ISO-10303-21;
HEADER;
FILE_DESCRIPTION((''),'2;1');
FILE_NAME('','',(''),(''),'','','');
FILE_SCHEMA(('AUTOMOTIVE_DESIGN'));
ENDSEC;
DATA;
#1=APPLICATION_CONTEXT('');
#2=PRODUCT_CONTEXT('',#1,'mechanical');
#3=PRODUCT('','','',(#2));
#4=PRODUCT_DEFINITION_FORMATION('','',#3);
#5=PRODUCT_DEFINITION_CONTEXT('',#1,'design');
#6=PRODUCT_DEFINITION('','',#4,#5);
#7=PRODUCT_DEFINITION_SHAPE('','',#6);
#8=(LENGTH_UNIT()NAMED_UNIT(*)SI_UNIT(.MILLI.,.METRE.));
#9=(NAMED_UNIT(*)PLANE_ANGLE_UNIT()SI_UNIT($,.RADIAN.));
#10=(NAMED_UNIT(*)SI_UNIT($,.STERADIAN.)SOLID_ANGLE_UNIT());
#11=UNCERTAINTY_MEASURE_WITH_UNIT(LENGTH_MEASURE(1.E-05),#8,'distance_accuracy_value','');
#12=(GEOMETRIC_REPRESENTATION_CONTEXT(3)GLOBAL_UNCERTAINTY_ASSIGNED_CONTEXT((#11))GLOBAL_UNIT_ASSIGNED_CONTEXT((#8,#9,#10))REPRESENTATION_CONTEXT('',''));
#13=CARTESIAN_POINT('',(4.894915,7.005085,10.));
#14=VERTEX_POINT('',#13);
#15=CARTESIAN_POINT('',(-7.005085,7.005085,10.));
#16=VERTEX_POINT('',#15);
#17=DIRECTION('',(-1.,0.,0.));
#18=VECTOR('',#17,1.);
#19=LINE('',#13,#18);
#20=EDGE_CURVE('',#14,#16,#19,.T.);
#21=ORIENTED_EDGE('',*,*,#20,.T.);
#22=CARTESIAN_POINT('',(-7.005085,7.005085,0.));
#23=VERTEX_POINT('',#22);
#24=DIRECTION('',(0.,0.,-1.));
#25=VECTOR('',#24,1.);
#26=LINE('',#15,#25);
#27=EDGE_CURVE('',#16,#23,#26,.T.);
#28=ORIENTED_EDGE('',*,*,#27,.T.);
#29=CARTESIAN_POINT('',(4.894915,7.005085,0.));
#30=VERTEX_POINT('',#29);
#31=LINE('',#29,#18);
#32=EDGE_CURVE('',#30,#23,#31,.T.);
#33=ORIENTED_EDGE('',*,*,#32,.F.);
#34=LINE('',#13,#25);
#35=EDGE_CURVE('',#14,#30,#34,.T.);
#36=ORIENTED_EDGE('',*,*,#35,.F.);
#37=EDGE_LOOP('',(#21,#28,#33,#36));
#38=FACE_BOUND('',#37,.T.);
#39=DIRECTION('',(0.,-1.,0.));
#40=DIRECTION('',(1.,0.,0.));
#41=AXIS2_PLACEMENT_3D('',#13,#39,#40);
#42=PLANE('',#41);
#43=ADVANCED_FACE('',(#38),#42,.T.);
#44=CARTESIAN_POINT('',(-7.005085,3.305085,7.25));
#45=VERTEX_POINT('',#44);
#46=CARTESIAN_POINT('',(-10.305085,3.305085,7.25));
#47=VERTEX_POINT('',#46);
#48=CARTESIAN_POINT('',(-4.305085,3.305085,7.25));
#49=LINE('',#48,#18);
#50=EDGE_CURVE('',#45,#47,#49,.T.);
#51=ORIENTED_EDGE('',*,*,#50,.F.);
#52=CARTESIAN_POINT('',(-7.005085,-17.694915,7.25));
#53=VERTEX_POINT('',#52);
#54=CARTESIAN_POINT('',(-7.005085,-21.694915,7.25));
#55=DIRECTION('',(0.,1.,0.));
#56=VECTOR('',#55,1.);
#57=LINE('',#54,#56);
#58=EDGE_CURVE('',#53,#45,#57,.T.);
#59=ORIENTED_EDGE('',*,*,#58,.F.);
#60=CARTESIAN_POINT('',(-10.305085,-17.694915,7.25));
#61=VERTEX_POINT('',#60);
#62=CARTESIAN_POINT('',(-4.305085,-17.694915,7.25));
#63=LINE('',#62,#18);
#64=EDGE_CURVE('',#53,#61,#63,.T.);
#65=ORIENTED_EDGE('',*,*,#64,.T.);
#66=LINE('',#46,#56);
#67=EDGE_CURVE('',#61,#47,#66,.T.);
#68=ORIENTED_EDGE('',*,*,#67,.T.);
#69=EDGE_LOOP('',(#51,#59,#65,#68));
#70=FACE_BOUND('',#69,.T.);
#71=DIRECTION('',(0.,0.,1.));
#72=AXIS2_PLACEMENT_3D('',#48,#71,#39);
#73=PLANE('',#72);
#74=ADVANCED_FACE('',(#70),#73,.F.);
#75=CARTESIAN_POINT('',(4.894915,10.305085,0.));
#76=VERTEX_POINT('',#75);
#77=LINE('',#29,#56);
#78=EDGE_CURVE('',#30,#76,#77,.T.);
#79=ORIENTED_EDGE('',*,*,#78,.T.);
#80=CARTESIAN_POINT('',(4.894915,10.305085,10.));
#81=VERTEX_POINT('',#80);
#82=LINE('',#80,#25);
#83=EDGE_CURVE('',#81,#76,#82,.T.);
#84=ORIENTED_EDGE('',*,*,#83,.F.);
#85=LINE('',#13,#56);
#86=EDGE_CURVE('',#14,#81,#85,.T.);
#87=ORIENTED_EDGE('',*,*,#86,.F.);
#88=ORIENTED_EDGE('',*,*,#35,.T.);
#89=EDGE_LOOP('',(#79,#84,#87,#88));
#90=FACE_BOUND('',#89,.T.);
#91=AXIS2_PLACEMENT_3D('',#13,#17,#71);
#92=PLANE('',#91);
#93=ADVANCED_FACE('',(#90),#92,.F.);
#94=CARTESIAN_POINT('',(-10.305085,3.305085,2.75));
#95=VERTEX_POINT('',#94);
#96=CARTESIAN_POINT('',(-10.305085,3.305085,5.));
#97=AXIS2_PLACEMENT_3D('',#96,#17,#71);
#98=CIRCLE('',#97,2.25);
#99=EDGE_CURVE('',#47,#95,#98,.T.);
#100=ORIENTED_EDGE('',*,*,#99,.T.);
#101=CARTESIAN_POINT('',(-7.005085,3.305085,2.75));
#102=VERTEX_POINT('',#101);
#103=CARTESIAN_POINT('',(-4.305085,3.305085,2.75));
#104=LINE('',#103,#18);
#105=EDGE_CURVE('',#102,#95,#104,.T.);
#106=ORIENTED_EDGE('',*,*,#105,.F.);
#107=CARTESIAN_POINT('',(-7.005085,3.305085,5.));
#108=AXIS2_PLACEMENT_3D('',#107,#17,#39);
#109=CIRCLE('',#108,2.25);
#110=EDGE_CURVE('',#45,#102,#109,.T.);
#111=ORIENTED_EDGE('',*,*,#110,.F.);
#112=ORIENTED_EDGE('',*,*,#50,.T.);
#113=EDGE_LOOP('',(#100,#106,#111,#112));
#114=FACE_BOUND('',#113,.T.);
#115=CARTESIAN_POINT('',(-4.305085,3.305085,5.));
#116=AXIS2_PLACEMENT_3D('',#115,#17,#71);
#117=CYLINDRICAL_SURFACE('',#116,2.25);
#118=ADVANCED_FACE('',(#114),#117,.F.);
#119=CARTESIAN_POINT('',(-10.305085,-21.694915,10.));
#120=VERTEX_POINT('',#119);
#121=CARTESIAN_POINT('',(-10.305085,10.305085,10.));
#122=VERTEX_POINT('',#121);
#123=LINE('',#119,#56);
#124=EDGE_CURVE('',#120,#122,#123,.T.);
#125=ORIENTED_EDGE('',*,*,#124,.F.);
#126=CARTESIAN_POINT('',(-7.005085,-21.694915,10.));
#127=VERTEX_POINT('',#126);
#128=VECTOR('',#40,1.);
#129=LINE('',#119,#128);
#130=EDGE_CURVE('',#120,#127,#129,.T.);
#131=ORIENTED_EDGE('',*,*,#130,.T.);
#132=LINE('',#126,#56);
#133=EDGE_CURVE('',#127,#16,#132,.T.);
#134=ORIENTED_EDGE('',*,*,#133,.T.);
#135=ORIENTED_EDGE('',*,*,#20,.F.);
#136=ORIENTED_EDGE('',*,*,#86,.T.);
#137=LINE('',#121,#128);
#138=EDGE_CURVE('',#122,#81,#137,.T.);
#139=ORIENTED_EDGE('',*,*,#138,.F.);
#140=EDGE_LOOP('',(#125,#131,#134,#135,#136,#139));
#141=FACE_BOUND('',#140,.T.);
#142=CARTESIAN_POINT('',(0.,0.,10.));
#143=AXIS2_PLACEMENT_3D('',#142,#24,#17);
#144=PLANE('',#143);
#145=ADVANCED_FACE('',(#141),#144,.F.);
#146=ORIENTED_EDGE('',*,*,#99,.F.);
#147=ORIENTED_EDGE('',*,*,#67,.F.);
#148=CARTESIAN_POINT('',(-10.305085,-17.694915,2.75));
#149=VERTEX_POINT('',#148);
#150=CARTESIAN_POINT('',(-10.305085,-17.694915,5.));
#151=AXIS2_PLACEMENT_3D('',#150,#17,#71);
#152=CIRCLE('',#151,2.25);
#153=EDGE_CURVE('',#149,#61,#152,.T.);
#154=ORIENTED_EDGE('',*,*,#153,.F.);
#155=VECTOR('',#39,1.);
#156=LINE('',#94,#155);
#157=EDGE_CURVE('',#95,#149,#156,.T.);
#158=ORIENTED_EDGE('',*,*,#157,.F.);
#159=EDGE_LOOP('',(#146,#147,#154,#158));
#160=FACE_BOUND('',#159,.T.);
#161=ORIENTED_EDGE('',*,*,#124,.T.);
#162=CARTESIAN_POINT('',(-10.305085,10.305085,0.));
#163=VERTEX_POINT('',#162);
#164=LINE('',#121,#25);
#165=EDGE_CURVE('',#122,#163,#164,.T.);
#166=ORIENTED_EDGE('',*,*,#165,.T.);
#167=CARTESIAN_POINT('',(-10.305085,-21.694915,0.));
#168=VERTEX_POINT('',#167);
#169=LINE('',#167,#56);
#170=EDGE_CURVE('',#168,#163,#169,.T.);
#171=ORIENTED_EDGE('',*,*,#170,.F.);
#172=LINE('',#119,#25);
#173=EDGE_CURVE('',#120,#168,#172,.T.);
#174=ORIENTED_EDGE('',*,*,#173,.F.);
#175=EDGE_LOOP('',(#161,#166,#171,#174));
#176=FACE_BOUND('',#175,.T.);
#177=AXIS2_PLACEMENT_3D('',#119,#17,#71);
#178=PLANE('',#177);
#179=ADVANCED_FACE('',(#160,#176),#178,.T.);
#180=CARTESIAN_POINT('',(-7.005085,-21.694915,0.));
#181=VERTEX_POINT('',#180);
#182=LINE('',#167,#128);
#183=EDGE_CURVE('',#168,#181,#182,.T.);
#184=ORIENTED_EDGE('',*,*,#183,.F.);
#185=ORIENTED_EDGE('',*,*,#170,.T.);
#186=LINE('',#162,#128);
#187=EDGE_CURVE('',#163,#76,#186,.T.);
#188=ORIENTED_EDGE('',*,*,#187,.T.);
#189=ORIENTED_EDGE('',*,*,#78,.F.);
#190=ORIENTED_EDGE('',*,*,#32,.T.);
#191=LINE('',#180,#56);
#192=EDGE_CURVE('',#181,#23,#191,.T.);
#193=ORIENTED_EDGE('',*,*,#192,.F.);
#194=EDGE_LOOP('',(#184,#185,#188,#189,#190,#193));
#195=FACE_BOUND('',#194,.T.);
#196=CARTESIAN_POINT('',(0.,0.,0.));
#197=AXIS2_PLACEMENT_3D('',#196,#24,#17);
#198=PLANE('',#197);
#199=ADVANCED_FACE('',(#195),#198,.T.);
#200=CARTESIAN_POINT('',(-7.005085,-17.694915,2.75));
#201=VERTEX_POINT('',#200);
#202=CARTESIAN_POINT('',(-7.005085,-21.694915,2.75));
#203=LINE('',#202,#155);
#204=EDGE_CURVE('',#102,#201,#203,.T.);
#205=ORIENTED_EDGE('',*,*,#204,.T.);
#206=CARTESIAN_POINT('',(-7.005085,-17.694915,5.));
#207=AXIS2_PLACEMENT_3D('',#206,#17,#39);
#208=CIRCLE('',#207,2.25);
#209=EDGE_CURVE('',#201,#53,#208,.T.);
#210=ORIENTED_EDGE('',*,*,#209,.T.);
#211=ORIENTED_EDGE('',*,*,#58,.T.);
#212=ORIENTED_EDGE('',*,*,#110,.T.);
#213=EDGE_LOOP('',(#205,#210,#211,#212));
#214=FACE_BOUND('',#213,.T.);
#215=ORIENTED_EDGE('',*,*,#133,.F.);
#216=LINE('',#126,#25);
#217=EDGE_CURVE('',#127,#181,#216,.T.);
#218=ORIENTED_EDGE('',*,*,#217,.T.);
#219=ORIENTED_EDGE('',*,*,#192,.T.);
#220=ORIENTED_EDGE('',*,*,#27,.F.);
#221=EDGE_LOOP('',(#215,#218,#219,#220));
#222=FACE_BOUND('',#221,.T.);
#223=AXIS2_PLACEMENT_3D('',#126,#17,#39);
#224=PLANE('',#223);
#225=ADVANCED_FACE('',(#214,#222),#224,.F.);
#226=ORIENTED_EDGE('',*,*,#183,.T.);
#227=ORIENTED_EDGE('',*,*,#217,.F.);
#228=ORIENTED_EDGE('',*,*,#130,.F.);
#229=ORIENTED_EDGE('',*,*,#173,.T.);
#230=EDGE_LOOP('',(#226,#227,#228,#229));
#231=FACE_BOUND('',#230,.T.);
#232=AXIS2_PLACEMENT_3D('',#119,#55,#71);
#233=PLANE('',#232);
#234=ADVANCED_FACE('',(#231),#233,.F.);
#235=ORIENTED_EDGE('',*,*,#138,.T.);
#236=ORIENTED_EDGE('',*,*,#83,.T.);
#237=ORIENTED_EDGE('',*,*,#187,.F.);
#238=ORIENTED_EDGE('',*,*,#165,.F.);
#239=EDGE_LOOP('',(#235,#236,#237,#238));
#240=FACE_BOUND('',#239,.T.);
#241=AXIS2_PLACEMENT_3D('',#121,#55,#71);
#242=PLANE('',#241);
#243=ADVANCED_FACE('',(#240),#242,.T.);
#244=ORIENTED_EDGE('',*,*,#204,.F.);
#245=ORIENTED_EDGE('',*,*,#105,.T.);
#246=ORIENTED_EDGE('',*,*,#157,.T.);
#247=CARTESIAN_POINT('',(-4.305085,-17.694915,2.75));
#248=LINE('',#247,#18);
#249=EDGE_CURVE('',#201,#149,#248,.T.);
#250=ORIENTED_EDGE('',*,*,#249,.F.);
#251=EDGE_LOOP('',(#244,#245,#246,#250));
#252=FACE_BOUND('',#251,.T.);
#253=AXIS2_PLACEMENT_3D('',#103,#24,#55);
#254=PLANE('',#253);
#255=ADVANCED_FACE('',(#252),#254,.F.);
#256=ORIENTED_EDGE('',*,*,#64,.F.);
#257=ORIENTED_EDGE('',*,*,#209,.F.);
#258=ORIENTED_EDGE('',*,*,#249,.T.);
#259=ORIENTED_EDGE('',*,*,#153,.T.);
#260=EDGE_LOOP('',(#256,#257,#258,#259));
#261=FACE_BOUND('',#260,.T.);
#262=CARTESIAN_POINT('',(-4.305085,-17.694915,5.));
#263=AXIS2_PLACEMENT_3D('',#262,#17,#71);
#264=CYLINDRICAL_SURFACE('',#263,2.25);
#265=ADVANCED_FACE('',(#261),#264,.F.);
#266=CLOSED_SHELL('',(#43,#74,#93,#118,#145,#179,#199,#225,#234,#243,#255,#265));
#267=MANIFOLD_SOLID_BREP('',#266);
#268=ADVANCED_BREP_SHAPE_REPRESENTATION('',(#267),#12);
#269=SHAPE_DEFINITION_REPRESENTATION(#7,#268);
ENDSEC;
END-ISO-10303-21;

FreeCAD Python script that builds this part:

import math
import FreeCAD as App
import Part
import Sketcher
from FreeCAD import Vector
Q = App.Units.Quantity

doc = App.newDocument("Part")
body = doc.addObject("PartDesign::Body", "Body")

sketch1 = body.newObject("Sketcher::SketchObject", "Sketch")
sketch1.AttachmentSupport = (doc.getObject("XY_Plane"), [""])
sketch1.MapMode = "FlatFace"
sketch1.addGeometry([
    Part.LineSegment(Vector(-10.3, -21.7, 0), Vector(-7, -21.7, 0)),
    Part.LineSegment(Vector(-7, -21.7, 0), Vector(-7, 7, 0)),
    Part.LineSegment(Vector(-7, 7, 0), Vector(4.9, 7, 0)),
    Part.LineSegment(Vector(4.9, 7, 0), Vector(4.9, 10.3, 0)),
    Part.LineSegment(Vector(4.9, 10.3, 0), Vector(-10.3, 10.3, 0)),
    Part.LineSegment(Vector(-10.3, 10.3, 0), Vector(-10.3, -21.7, 0)),
], False)
sketch1.addConstraint([
    Sketcher.Constraint("Coincident", 0, 2, 1, 1),
    Sketcher.Constraint("Coincident", 1, 2, 2, 1),
    Sketcher.Constraint("Coincident", 2, 2, 3, 1),
    Sketcher.Constraint("Coincident", 3, 2, 4, 1),
    Sketcher.Constraint("Coincident", 4, 2, 5, 1),
    Sketcher.Constraint("Coincident", 5, 2, 0, 1),
    Sketcher.Constraint("Horizontal", 0),
    Sketcher.Constraint("Vertical", 1),
    Sketcher.Constraint("Horizontal", 2),
    Sketcher.Constraint("Vertical", 3),
    Sketcher.Constraint("Horizontal", 4),
    Sketcher.Constraint("Vertical", 5),
    Sketcher.Constraint("Equal", 0, 3),
    Sketcher.Constraint("DistanceY", 5, 2, 5, 1, Q("32 mm")),
    Sketcher.Constraint("DistanceX", 0, 1, 0, 2, Q("3.3 mm")),
    Sketcher.Constraint("DistanceX", 2, 1, 2, 2, Q("11.9 mm")),
    Sketcher.Constraint("DistanceX", 0, 2, -1, 1, Q("7.005085 mm")),
    Sketcher.Constraint("DistanceY", 0, 2, -1, 1, Q("21.694915 mm")),
])
pad1 = body.newObject("PartDesign::Pad", "Pad")
pad1.Profile = sketch1
pad1.Length = 10

sketch2 = body.newObject("Sketcher::SketchObject", "Sketch001")
sketch2.AttachmentSupport = (doc.getObject("YZ_Plane"), [""])
sketch2.MapMode = "FlatFace"
sketch2.AttachmentOffset = App.Placement(Vector(0, 0, -10.305085), App.Rotation())
sketch2.addGeometry([
    Part.LineSegment(Vector(3.3, 2.8, 0), Vector(-17.7, 2.8, 0)),
    Part.ArcOfCircle(Part.Circle(Vector(-17.7, 5, 0), Vector(0, 0, 1), 2.2), math.radians(90), math.radians(270)),
    Part.LineSegment(Vector(-17.7, 7.2, 0), Vector(3.3, 7.2, 0)),
    Part.ArcOfCircle(Part.Circle(Vector(3.3, 5, 0), Vector(0, 0, 1), 2.2), math.radians(-90), math.radians(90)),
], False)
sketch2.addConstraint([
    Sketcher.Constraint("Tangent", 0, 2, 1, 2),
    Sketcher.Constraint("Tangent", 1, 1, 2, 1),
    Sketcher.Constraint("Tangent", 2, 2, 3, 2),
    Sketcher.Constraint("Tangent", 3, 1, 0, 1),
    Sketcher.Constraint("Horizontal", 0),
    Sketcher.Constraint("Horizontal", 2),
    Sketcher.Constraint("DistanceX", 0, 2, 0, 1, Q("21 mm")),
    Sketcher.Constraint("Radius", 1, Q("2.25 mm")),
    Sketcher.Constraint("DistanceY", -1, 1, 1, 3, Q("5 mm")),
    Sketcher.Constraint("DistanceX", 1, 3, -1, 1, Q("17.694915 mm")),
])
pocket1 = body.newObject("PartDesign::Pocket", "Pocket")
pocket1.Profile = sketch2
pocket1.Length = 6
pocket1.Reversed = True

doc.recompute()
